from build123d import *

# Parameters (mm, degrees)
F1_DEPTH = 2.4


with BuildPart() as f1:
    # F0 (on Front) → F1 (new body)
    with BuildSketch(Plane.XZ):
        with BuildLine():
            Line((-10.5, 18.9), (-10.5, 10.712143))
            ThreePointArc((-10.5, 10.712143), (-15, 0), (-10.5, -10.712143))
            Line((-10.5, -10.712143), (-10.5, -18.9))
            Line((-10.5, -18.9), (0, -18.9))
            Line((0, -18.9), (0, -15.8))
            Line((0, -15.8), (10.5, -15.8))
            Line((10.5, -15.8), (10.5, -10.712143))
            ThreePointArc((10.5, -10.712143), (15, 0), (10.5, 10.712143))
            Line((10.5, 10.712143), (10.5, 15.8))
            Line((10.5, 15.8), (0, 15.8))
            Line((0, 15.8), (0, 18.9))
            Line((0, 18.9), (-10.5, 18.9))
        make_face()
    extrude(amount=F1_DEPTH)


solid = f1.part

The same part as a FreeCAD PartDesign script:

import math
import FreeCAD as App
import Part
import Sketcher

V = App.Vector
Q = App.Units.Quantity

doc = App.newDocument("Part")
params = doc.addObject("Spreadsheet::Sheet", "Params")
for row, (alias, value) in enumerate([
    ("sketch1_radius", "15.000001 mm"),
    ("sketch1_width", "10.5 mm"),
    ("sketch1_height", "3.1 mm"),
    ("pad1_length", "2.4 mm"),
], start=1):
    params.set(f"A{row}", alias)
    params.set(f"B{row}", "=" + value)
    params.setAlias(f"B{row}", alias)

body = doc.addObject("PartDesign::Body", "Body")

# Sketch on XZ plane
sketch1 = body.newObject("Sketcher::SketchObject", "Sketch")
sketch1.AttachmentSupport = (doc.getObject("XZ_Plane"), [""])
sketch1.MapMode = "FlatFace"
sketch1.addGeometry([
    Part.LineSegment(V(-10.5, 18.9, 0), V(-10.5, 10.712143, 0)),  # 0
    Part.ArcOfCircle(Part.Circle(V(0.000001, 0, 0), V(0, 0, 1), 15.000001), math.radians(134.427005), math.radians(225.572995)),  # 1
    Part.LineSegment(V(-10.5, -10.712143, 0), V(-10.5, -18.9, 0)),  # 2
    Part.LineSegment(V(-10.5, -18.9, 0), V(0, -18.9, 0)),  # 3
    Part.LineSegment(V(0, -18.9, 0), V(0, -15.8, 0)),  # 4
    Part.LineSegment(V(0, -15.8, 0), V(10.5, -15.8, 0)),  # 5
    Part.LineSegment(V(10.5, -15.8, 0), V(10.5, -10.712143, 0)),  # 6
    Part.ArcOfCircle(Part.Circle(V(-0.000001, 0, 0), V(0, 0, 1), 15.000001), math.radians(-45.572995), math.radians(45.572995)),  # 7
    Part.LineSegment(V(10.5, 10.712143, 0), V(10.5, 15.8, 0)),  # 8
    Part.LineSegment(V(10.5, 15.8, 0), V(0, 15.8, 0)),  # 9
    Part.LineSegment(V(0, 15.8, 0), V(0, 18.9, 0)),  # 10
    Part.LineSegment(V(0, 18.9, 0), V(-10.5, 18.9, 0)),  # 11
], False)
sketch1.addConstraint([
    Sketcher.Constraint("Coincident", 0, 2, 1, 1),
    Sketcher.Constraint("Coincident", 1, 2, 2, 1),
    Sketcher.Constraint("Coincident", 2, 2, 3, 1),
    Sketcher.Constraint("Coincident", 3, 2, 4, 1),
    Sketcher.Constraint("Coincident", 4, 2, 5, 1),
    Sketcher.Constraint("Coincident", 5, 2, 6, 1),
    Sketcher.Constraint("Coincident", 6, 2, 7, 1),
    Sketcher.Constraint("Coincident", 7, 2, 8, 1),
    Sketcher.Constraint("Coincident", 8, 2, 9, 1),
    Sketcher.Constraint("Coincident", 9, 2, 10, 1),
    Sketcher.Constraint("Coincident", 10, 2, 11, 1),
    Sketcher.Constraint("Coincident", 11, 2, 0, 1),
    Sketcher.Constraint("Vertical", 0),
    Sketcher.Constraint("Vertical", 2),
    Sketcher.Constraint("Horizontal", 3),
    Sketcher.Constraint("Vertical", 4),
    Sketcher.Constraint("Horizontal", 5),
    Sketcher.Constraint("Vertical", 6),
    Sketcher.Constraint("Vertical", 8),
    Sketcher.Constraint("Horizontal", 9),
    Sketcher.Constraint("Vertical", 10),
    Sketcher.Constraint("Horizontal", 11),
    Sketcher.Constraint("Coincident", 1, 3, -1, 1),
    Sketcher.Constraint("Coincident", 7, 3, -1, 1),
    Sketcher.Constraint("Equal", 1, 7),
    Sketcher.Constraint("Symmetric", 4, 2, 9, 2, -1, 1),
    Sketcher.Constraint("Symmetric", 3, 2, 10, 2, -1),
    Sketcher.Constraint("Horizontal", 1, 2, 6, 2),
    Sketcher.Constraint("Horizontal", 0, 2, 7, 2),
    Sketcher.Constraint("Vertical", 0, 2, 1, 2),
    Sketcher.Constraint("Radius", 1, Q("15.000001 mm")),
    Sketcher.Constraint("DistanceX", 3, 1, 3, 2, Q("10.5 mm")),
    Sketcher.Constraint("DistanceY", 4, 1, 4, 2, Q("3.1 mm")),
    Sketcher.Constraint("DistanceY", 2, 2, -1, 1, Q("18.9 mm")),
])
sketch1.setExpression("Constraints[30]", "Params.sketch1_radius")
sketch1.setExpression("Constraints[31]", "Params.sketch1_width")
sketch1.setExpression("Constraints[32]", "Params.sketch1_height")
pad1 = body.newObject("PartDesign::Pad", "Pad")
pad1.Profile = sketch1
pad1.setExpression("Length", "Params.pad1_length")

doc.recompute()
